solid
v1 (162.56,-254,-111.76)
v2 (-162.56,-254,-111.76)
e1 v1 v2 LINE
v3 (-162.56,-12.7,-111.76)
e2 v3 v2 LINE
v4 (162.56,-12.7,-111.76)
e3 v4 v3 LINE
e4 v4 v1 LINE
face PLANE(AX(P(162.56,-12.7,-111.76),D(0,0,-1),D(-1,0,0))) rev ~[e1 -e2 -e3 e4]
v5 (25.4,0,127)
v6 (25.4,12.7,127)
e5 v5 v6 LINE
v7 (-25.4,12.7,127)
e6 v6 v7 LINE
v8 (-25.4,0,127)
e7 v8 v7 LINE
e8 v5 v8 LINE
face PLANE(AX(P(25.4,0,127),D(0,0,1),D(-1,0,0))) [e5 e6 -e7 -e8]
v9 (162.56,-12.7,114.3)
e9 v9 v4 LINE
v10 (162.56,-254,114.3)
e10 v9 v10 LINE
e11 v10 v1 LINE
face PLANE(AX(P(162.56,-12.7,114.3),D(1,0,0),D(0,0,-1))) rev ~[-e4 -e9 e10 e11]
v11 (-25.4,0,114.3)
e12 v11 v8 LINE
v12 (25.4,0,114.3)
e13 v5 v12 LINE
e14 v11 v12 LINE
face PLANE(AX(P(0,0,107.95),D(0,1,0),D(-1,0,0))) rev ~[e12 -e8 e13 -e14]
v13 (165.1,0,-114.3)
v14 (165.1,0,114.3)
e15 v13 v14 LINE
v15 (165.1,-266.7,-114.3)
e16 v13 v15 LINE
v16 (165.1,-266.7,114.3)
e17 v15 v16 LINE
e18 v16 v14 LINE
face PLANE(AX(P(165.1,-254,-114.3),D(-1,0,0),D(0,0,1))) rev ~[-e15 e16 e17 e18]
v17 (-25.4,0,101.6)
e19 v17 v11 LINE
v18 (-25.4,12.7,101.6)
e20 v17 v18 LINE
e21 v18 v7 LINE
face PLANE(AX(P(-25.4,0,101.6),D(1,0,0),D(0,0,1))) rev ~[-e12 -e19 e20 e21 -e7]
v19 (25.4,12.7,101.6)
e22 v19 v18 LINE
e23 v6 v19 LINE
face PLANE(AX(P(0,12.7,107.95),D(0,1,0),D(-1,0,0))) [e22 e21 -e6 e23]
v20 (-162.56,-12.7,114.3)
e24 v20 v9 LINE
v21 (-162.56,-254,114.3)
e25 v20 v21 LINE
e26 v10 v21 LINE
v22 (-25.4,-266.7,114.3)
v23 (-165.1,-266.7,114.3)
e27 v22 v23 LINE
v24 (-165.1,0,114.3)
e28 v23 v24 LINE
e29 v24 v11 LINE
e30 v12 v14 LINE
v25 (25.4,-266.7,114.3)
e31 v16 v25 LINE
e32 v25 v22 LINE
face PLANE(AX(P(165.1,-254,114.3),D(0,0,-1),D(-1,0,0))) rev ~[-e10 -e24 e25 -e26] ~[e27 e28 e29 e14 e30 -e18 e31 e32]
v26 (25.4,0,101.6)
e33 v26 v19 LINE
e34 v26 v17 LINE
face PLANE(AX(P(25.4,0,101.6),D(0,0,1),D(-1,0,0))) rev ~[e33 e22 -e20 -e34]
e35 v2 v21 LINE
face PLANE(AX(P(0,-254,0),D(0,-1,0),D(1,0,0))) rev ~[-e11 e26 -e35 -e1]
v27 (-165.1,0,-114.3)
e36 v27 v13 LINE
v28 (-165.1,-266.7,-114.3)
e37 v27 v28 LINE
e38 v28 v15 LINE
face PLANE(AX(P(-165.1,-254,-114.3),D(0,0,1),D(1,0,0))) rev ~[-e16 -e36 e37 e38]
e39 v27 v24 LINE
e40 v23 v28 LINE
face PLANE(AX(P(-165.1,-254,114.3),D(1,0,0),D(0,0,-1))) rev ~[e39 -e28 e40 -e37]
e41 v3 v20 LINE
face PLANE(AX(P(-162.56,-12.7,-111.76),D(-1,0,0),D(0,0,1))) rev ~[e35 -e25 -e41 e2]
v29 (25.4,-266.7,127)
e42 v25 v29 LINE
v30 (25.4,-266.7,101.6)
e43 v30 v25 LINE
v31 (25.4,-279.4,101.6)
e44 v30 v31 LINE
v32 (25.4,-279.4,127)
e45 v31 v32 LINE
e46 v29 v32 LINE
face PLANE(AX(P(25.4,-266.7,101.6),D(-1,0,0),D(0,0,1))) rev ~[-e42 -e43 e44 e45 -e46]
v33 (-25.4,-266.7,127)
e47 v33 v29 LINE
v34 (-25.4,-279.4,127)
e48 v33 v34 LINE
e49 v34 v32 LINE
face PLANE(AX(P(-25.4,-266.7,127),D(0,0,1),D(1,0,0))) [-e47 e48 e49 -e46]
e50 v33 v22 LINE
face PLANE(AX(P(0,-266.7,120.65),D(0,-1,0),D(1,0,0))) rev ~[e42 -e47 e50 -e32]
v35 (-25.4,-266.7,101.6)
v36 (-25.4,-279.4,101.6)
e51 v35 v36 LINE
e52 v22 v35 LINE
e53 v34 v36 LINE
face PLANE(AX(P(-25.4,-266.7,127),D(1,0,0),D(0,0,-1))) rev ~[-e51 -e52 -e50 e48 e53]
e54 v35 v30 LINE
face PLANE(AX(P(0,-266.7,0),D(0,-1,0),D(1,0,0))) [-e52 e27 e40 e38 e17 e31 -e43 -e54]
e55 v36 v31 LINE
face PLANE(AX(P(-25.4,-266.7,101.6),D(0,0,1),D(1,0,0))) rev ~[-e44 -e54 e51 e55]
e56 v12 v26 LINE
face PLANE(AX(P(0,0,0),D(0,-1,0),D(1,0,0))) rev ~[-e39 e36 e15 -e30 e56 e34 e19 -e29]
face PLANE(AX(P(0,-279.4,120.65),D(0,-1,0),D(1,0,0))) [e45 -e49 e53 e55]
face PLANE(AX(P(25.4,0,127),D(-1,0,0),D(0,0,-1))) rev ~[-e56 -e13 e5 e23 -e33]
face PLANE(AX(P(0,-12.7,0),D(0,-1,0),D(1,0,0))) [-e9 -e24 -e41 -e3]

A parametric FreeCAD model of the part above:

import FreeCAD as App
import Part
import Sketcher
Q = App.Units.Quantity


def add_polygon(sketch, points):
    """Adds a closed chain of lines whose ends are joined by coincident constraints."""
    first, n = sketch.GeometryCount, len(points)
    for a, b in zip(points, points[1:] + points[:1]):
        sketch.addGeometry(Part.LineSegment(App.Vector(*a, 0), App.Vector(*b, 0)), False)
    for i in range(n):
        sketch.addConstraint(Sketcher.Constraint("Coincident", first + i, 2, first + (i + 1) % n, 1))

doc = App.newDocument("Part")
params = doc.addObject("Spreadsheet::Sheet", "Params")
for row, (alias, value) in enumerate([
    ("sketch1_width", "13 in"),
    ("sketch1_height", "9 in"),
    ("pad1_length", "0.5 in"),
    ("sketch2_width", "13 in"),
    ("sketch2_height", "9 in"),
    ("sketch2_width2", "0.1 in"),
    ("sketch2_height2", "8.9 in"),
    ("pad2_length", "9.5 in"),
    ("sketch3_width", "13 in"),
    ("sketch3_height", "9 in"),
    ("pad3_length", "0.5 in"),
    ("sketch4_width", "2 in"),
    ("sketch4_height", "1 in"),
    ("pad4_length", "0.5 in"),
    ("sketch5_width", "2 in"),
    ("sketch5_height", "1 in"),
    ("pad5_length", "0.5 in"),
], start=1):
    params.set(f"A{row}", alias)
    params.set(f"B{row}", "=" + value)
    params.setAlias(f"B{row}", alias)

body = doc.addObject("PartDesign::Body", "Body")

sketch1 = body.newObject("Sketcher::SketchObject", "Sketch")
sketch1.AttachmentSupport = (doc.getObject("XZ_Plane"), [""])
sketch1.MapMode = "FlatFace"
add_polygon(sketch1, [(-165, 114), (-165, -114), (165, -114), (165, 114)])
sketch1.addConstraint(Sketcher.Constraint("Vertical", 0))
sketch1.addConstraint(Sketcher.Constraint("Horizontal", 1))
sketch1.addConstraint(Sketcher.Constraint("Vertical", 2))
sketch1.addConstraint(Sketcher.Constraint("Horizontal", 3))
sketch1.addConstraint(Sketcher.Constraint("Symmetric", 0, 2, 2, 2, -1, 1))
sketch1.addConstraint(Sketcher.Constraint("DistanceX", 1, 1, 1, 2, Q("13 in")))
sketch1.addConstraint(Sketcher.Constraint("DistanceY", 0, 2, 0, 1, Q("9 in")))
sketch1.setExpression("Constraints[9]", "Params.sketch1_width")
sketch1.setExpression("Constraints[10]", "Params.sketch1_height")
pad1 = body.newObject("PartDesign::Pad", "Pad")
pad1.Profile = sketch1
pad1.setExpression("Length", "Params.pad1_length")

sketch2 = body.newObject("Sketcher::SketchObject", "Sketch001")
sketch2.AttachmentSupport = (doc.getObject("XZ_Plane"), [""])
sketch2.MapMode = "FlatFace"
sketch2.AttachmentOffset = App.Placement(App.Vector(0, 0, 0.5 * 25.4), App.Rotation())
add_polygon(sketch2, [(-162.6, -111.8), (-162.6, 114.3), (-165.1, 114.3), (-165.1, -114.3), (165.1, -114.3), (165.1, 114.3), (162.6, 114.3), (162.6, -111.8)])
sketch2.addConstraint(Sketcher.Constraint("Vertical", 0))
sketch2.addConstraint(Sketcher.Constraint("Horizontal", 1))
sketch2.addConstraint(Sketcher.Constraint("Vertical", 2))
sketch2.addConstraint(Sketcher.Constraint("Horizontal", 3))
sketch2.addConstraint(Sketcher.Constraint("Vertical", 4))
sketch2.addConstraint(Sketcher.Constraint("Horizontal", 5))
sketch2.addConstraint(Sketcher.Constraint("Vertical", 6))
sketch2.addConstraint(Sketcher.Constraint("Horizontal", 7))
sketch2.addConstraint(Sketcher.Constraint("Symmetric", 1, 2, 3, 2, -1, 1))
sketch2.addConstraint(Sketcher.Constraint("Symmetric", 0, 2, 5, 2, -2))
sketch2.addConstraint(Sketcher.Constraint("DistanceX", 3, 1, 3, 2, Q("13 in")))
sketch2.addConstraint(Sketcher.Constraint("DistanceY", 2, 2, 2, 1, Q("9 in")))
sketch2.addConstraint(Sketcher.Constraint("DistanceX", 1, 2, 1, 1, Q("0.1 in")))
sketch2.addConstraint(Sketcher.Constraint("DistanceY", 0, 1, 0, 2, Q("8.9 in")))
sketch2.setExpression("Constraints[18]", "Params.sketch2_width")
sketch2.setExpression("Constraints[19]", "Params.sketch2_height")
sketch2.setExpression("Constraints[20]", "Params.sketch2_width2")
sketch2.setExpression("Constraints[21]", "Params.sketch2_height2")
pad2 = body.newObject("PartDesign::Pad", "Pad001")
pad2.Profile = sketch2
pad2.setExpression("Length", "Params.pad2_length")

sketch3 = body.newObject("Sketcher::SketchObject", "Sketch002")
sketch3.AttachmentSupport = (doc.getObject("XZ_Plane"), [""])
sketch3.MapMode = "FlatFace"
sketch3.AttachmentOffset = App.Placement(App.Vector(0, 0, 10 * 25.4), App.Rotation())
add_polygon(sketch3, [(-165, 114), (-165, -114), (165, -114), (165, 114)])
sketch3.addConstraint(Sketcher.Constraint("Vertical", 0))
sketch3.addConstraint(Sketcher.Constraint("Horizontal", 1))
sketch3.addConstraint(Sketcher.Constraint("Vertical", 2))
sketch3.addConstraint(Sketcher.Constraint("Horizontal", 3))
sketch3.addConstraint(Sketcher.Constraint("Symmetric", 0, 2, 2, 2, -1, 1))
sketch3.addConstraint(Sketcher.Constraint("DistanceX", 1, 1, 1, 2, Q("13 in")))
sketch3.addConstraint(Sketcher.Constraint("DistanceY", 0, 2, 0, 1, Q("9 in")))
sketch3.setExpression("Constraints[9]", "Params.sketch3_width")
sketch3.setExpression("Constraints[10]", "Params.sketch3_height")
pad3 = body.newObject("PartDesign::Pad", "Pad002")
pad3.Profile = sketch3
pad3.setExpression("Length", "Params.pad3_length")

sketch4 = body.newObject("Sketcher::SketchObject", "Sketch003")
sketch4.AttachmentSupport = (doc.getObject("XZ_Plane"), [""])
sketch4.MapMode = "FlatFace"
sketch4.AttachmentOffset = App.Placement(App.Vector(0, 0, 10.5 * 25.4), App.Rotation())
add_polygon(sketch4, [(-25, 127), (-25, 102), (25, 102), (25, 127)])
sketch4.addConstraint(Sketcher.Constraint("Vertical", 0))
sketch4.addConstraint(Sketcher.Constraint("Horizontal", 1))
sketch4.addConstraint(Sketcher.Constraint("Vertical", 2))
sketch4.addConstraint(Sketcher.Constraint("Horizontal", 3))
sketch4.addConstraint(Sketcher.Constraint("DistanceX", 1, 1, 1, 2, Q("2 in")))
sketch4.addConstraint(Sketcher.Constraint("DistanceY", 0, 2, 0, 1, Q("1 in")))
sketch4.addConstraint(Sketcher.Constraint("DistanceX", 0, 2, -1, 1, Q("1 in")))
sketch4.addConstraint(Sketcher.Constraint("DistanceY", -1, 1, 0, 2, Q("4 in")))
sketch4.setExpression("Constraints[8]", "Params.sketch4_width")
sketch4.setExpression("Constraints[9]", "Params.sketch4_height")
pad4 = body.newObject("PartDesign::Pad", "Pad003")
pad4.Profile = sketch4
pad4.setExpression("Length", "Params.pad4_length")

sketch5 = body.newObject("Sketcher::SketchObject", "Sketch004")
sketch5.AttachmentSupport = (doc.getObject("XZ_Plane"), [""])
sketch5.MapMode = "FlatFace"
add_polygon(sketch5, [(25, 102), (-25, 102), (-25, 127), (25, 127)])
sketch5.addConstraint(Sketcher.Constraint("Horizontal", 0))
sketch5.addConstraint(Sketcher.Constraint("Vertical", 1))
sketch5.addConstraint(Sketcher.Constraint("Horizontal", 2))
sketch5.addConstraint(Sketcher.Constraint("Vertical", 3))
sketch5.addConstraint(Sketcher.Constraint("DistanceX", 0, 2, 0, 1, Q("2 in")))
sketch5.addConstraint(Sketcher.Constraint("DistanceY", 1, 1, 1, 2, Q("1 in")))
sketch5.addConstraint(Sketcher.Constraint("DistanceX", 0, 2, -1, 1, Q("1 in")))
sketch5.addConstraint(Sketcher.Constraint("DistanceY", -1, 1, 0, 2, Q("4 in")))
sketch5.setExpression("Constraints[8]", "Params.sketch5_width")
sketch5.setExpression("Constraints[9]", "Params.sketch5_height")
pad5 = body.newObject("PartDesign::Pad", "Pad004")
pad5.Profile = sketch5
pad5.setExpression("Length", "Params.pad5_length")
pad5.Reversed = True

doc.recompute()
